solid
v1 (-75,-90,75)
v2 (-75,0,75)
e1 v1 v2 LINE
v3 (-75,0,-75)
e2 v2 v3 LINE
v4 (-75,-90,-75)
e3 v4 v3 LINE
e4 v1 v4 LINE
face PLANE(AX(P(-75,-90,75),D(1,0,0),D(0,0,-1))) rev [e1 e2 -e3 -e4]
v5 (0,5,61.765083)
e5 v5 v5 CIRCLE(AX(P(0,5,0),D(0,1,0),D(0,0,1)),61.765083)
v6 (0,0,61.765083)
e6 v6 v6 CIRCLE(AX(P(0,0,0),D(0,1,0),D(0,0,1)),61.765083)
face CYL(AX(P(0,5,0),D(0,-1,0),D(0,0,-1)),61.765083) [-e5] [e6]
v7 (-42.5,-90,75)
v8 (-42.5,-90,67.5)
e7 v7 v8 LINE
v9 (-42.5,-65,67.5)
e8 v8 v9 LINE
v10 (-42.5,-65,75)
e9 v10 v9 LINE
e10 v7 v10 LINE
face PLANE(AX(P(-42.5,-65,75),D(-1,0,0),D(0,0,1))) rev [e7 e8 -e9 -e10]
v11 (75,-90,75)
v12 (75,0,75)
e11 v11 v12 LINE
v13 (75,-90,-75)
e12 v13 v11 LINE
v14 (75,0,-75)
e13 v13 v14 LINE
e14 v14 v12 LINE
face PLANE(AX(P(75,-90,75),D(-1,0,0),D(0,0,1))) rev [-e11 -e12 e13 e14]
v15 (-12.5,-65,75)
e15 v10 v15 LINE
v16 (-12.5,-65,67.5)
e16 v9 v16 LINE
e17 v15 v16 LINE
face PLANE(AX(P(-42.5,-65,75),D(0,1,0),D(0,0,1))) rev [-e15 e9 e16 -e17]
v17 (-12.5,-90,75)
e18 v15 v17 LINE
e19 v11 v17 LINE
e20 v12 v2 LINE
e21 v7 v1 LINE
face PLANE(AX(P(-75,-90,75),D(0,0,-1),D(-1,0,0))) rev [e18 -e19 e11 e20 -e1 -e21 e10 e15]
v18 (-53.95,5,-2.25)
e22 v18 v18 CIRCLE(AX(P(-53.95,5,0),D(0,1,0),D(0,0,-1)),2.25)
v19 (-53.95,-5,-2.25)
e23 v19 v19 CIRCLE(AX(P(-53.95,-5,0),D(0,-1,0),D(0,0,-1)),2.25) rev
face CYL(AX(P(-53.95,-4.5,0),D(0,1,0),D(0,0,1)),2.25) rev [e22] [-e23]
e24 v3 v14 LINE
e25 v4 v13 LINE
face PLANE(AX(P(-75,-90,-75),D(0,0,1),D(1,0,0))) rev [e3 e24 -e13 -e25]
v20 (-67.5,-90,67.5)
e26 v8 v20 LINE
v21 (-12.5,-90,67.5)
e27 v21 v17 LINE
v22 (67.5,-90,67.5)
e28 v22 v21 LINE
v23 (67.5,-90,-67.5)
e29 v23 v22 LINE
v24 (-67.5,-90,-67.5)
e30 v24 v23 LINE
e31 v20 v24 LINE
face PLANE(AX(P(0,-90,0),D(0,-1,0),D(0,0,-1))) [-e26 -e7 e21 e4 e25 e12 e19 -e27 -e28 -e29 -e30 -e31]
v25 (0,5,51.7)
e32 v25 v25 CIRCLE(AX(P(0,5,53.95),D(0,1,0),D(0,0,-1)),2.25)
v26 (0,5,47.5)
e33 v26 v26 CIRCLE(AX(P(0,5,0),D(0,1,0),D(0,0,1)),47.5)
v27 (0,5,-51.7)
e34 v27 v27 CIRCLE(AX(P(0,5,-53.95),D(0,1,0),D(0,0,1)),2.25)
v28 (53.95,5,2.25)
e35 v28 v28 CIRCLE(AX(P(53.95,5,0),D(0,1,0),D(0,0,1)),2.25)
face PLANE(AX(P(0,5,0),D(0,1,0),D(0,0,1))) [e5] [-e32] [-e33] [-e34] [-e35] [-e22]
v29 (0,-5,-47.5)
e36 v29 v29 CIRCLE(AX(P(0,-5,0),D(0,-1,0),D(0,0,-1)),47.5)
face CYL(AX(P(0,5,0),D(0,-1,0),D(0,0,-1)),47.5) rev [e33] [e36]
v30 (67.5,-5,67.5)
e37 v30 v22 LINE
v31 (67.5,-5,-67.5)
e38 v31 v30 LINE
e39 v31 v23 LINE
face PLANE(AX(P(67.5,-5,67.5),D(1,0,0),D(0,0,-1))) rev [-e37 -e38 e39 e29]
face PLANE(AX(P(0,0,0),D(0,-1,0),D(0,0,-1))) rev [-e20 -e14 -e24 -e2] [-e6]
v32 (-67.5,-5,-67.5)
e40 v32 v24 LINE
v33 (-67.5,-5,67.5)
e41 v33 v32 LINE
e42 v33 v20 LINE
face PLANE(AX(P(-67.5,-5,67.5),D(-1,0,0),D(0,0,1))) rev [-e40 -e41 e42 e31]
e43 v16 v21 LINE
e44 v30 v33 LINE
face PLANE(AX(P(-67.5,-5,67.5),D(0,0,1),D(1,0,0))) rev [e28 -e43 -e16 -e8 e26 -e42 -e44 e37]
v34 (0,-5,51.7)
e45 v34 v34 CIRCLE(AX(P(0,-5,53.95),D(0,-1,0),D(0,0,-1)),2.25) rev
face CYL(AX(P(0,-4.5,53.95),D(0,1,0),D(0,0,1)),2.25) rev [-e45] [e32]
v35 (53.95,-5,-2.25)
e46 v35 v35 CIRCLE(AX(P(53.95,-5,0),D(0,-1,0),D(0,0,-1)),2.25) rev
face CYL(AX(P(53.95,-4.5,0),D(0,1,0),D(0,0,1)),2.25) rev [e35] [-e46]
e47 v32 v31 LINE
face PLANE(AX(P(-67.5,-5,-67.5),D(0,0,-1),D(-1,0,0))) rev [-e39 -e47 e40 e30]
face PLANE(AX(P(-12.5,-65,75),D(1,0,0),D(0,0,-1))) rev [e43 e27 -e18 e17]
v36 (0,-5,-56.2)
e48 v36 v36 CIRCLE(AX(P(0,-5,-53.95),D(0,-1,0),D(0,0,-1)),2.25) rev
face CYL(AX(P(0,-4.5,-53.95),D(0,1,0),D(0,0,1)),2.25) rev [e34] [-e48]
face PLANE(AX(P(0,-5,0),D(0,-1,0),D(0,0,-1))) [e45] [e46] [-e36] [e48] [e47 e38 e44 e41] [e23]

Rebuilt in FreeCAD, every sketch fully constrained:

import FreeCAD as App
import Part
import Sketcher
from FreeCAD import Vector
Q = App.Units.Quantity

doc = App.newDocument("Part")
body = doc.addObject("PartDesign::Body", "Body")

# Sketch on XZ plane
sketch1 = body.newObject("Sketcher::SketchObject", "Sketch")
sketch1.AttachmentSupport = (doc.getObject("XZ_Plane"), [""])
sketch1.MapMode = "FlatFace"
sketch1.addGeometry([
    Part.Circle(Vector(0, 0, 0), Vector(0, 0, 1), 62),
    Part.Circle(Vector(0, 0, 0), Vector(0, 0, 1), 48),
], False)
sketch1.addConstraint([
    Sketcher.Constraint("Coincident", 0, 3, -1, 1),
    Sketcher.Constraint("Coincident", 1, 3, -1, 1),
    Sketcher.Constraint("Diameter", 1, Q("95 mm")),
    Sketcher.Constraint("Diameter", 0, Q("123.530166 mm")),
])
pad1 = body.newObject("PartDesign::Pad", "Pad")
pad1.Profile = sketch1
pad1.Length = 5
pad1.Reversed = True

# Sketch on XZ plane
sketch2 = body.newObject("Sketcher::SketchObject", "Sketch001")
sketch2.AttachmentSupport = (doc.getObject("XZ_Plane"), [""])
sketch2.MapMode = "FlatFace"
sketch2.AttachmentOffset = App.Placement(Vector(0, 0, -5), App.Rotation())
sketch2.addGeometry([
    Part.Circle(Vector(0, -54, 0), Vector(0, 0, 1), 2.2),
    Part.Circle(Vector(0, 54, 0), Vector(0, 0, 1), 2.2),
    Part.Circle(Vector(54, 0, 0), Vector(0, 0, 1), 2.2),
    Part.Circle(Vector(-54, 0, 0), Vector(0, 0, 1), 2.2),
], False)
sketch2.addConstraint([
    Sketcher.Constraint("Equal", 0, 1),
    Sketcher.Constraint("Equal", 1, 2),
    Sketcher.Constraint("Equal", 2, 3),
    Sketcher.Constraint("Symmetric", 0, 3, 1, 3, -1, 1),
    Sketcher.Constraint("Symmetric", 2, 3, 3, 3, -1, 1),
    Sketcher.Constraint("PointOnObject", 0, 3, -2),
    Sketcher.Constraint("PointOnObject", 2, 3, -1),
    Sketcher.Constraint("Diameter", 0, Q("4.5 mm")),
    Sketcher.Constraint("DistanceY", 0, 3, 1, 3, Q("107.9 mm")),
    Sketcher.Constraint("DistanceX", 3, 3, 2, 3, Q("107.9 mm")),
])
pocket1 = body.newObject("PartDesign::Pocket", "Pocket")
pocket1.Profile = sketch2
pocket1.Length = 9.5
pocket1.Reversed = True

# Sketch on XZ plane
sketch3 = body.newObject("Sketcher::SketchObject", "Sketch002")
sketch3.AttachmentSupport = (doc.getObject("XZ_Plane"), [""])
sketch3.MapMode = "FlatFace"
sketch3.addGeometry([
    Part.LineSegment(Vector(75, -75, 0), Vector(75, 75, 0)),  # 0
    Part.LineSegment(Vector(75, 75, 0), Vector(-75, 75, 0)),  # 1
    Part.LineSegment(Vector(-75, 75, 0), Vector(-75, -75, 0)),  # 2
    Part.LineSegment(Vector(-75, -75, 0), Vector(75, -75, 0)),  # 3
    Part.Circle(Vector(0, 54, 0), Vector(0, 0, 1), 2.2),  # 4
    Part.Circle(Vector(54, 0, 0), Vector(0, 0, 1), 2.2),  # 5
    Part.Circle(Vector(0, 0, 0), Vector(0, 0, 1), 47.5),  # 6
    Part.Circle(Vector(-54, 0, 0), Vector(0, 0, 1), 2.2),  # 7
    Part.Circle(Vector(0, -54, 0), Vector(0, 0, 1), 2.2),  # 8
], False)
sketch3.addConstraint([
    Sketcher.Constraint("Coincident", 0, 2, 1, 1),
    Sketcher.Constraint("Coincident", 1, 2, 2, 1),
    Sketcher.Constraint("Coincident", 2, 2, 3, 1),
    Sketcher.Constraint("Coincident", 3, 2, 0, 1),
    Sketcher.Constraint("Vertical", 0),
    Sketcher.Constraint("Horizontal", 1),
    Sketcher.Constraint("Vertical", 2),
    Sketcher.Constraint("Horizontal", 3),
    Sketcher.Constraint("Coincident", 6, 3, -1, 1),
    Sketcher.Constraint("Equal", 4, 5),
    Sketcher.Constraint("Equal", 5, 7),
    Sketcher.Constraint("Equal", 7, 8),
    Sketcher.Constraint("Symmetric", 5, 3, 7, 3, -1, 1),
    Sketcher.Constraint("Symmetric", 4, 3, 8, 3, -1, 1),
    Sketcher.Constraint("Symmetric", 0, 2, 2, 2, -1, 1),
    Sketcher.Constraint("PointOnObject", 4, 3, -2),
    Sketcher.Constraint("PointOnObject", 5, 3, -1),
    Sketcher.Constraint("Equal", 3, 0),
    Sketcher.Constraint("Diameter", 6, Q("95 mm")),
    Sketcher.Constraint("Diameter", 4, Q("4.5 mm")),
    Sketcher.Constraint("DistanceX", 1, 2, 1, 1, Q("150 mm")),
    Sketcher.Constraint("DistanceX", 7, 3, 5, 3, Q("107.9 mm")),
    Sketcher.Constraint("DistanceY", 8, 3, 4, 3, Q("107.9 mm")),
])
pad2 = body.newObject("PartDesign::Pad", "Pad001")
pad2.Profile = sketch3
pad2.Length = 90

# Sketch on XY plane
sketch4 = body.newObject("Sketcher::SketchObject", "Sketch003")
sketch4.AttachmentSupport = (doc.getObject("XY_Plane"), [""])
sketch4.MapMode = "FlatFace"
sketch4.AttachmentOffset = App.Placement(Vector(0, 0, 75), App.Rotation())
sketch4.addGeometry([
    Part.LineSegment(Vector(-13, -65, 0), Vector(-42, -65, 0)),
    Part.LineSegment(Vector(-42, -65, 0), Vector(-42, -95, 0)),
    Part.LineSegment(Vector(-42, -95, 0), Vector(-13, -95, 0)),
    Part.LineSegment(Vector(-13, -95, 0), Vector(-13, -65, 0)),
], False)
sketch4.addConstraint([
    Sketcher.Constraint("Coincident", 0, 2, 1, 1),
    Sketcher.Constraint("Coincident", 1, 2, 2, 1),
    Sketcher.Constraint("Coincident", 2, 2, 3, 1),
    Sketcher.Constraint("Coincident", 3, 2, 0, 1),
    Sketcher.Constraint("Horizontal", 0),
    Sketcher.Constraint("Vertical", 1),
    Sketcher.Constraint("Horizontal", 2),
    Sketcher.Constraint("Vertical", 3),
    Sketcher.Constraint("Equal", 2, 1),
    Sketcher.Constraint("DistanceX", 0, 2, 0, 1, Q("30 mm")),
    Sketcher.Constraint("DistanceY", 0, 2, -1, 1, Q("65 mm")),
    Sketcher.Constraint("DistanceX", 0, 2, -1, 1, Q("42.5 mm")),
])
pocket2 = body.newObject("PartDesign::Pocket", "Pocket001")
pocket2.Profile = sketch4
pocket2.Length = 60

# Sketch on XZ plane
sketch5 = body.newObject("Sketcher::SketchObject", "Sketch004")
sketch5.AttachmentSupport = (doc.getObject("XZ_Plane"), [""])
sketch5.MapMode = "FlatFace"
sketch5.AttachmentOffset = App.Placement(Vector(0, 0, 90), App.Rotation())
sketch5.addGeometry([
    Part.LineSegment(Vector(-68, 68, 0), Vector(-68, -68, 0)),
    Part.LineSegment(Vector(-68, -68, 0), Vector(68, -68, 0)),
    Part.LineSegment(Vector(68, -68, 0), Vector(68, 68, 0)),
    Part.LineSegment(Vector(68, 68, 0), Vector(-68, 68, 0)),
], False)
sketch5.addConstraint([
    Sketcher.Constraint("Coincident", 0, 2, 1, 1),
    Sketcher.Constraint("Coincident", 1, 2, 2, 1),
    Sketcher.Constraint("Coincident", 2, 2, 3, 1),
    Sketcher.Constraint("Coincident", 3, 2, 0, 1),
    Sketcher.Constraint("Vertical", 0),
    Sketcher.Constraint("Horizontal", 1),
    Sketcher.Constraint("Vertical", 2),
    Sketcher.Constraint("Horizontal", 3),
    Sketcher.Constraint("Symmetric", 0, 2, 2, 2, -1, 1),
    Sketcher.Constraint("Equal", 3, 0),
    Sketcher.Constraint("DistanceX", 1, 1, 1, 2, Q("135 mm")),
])
pocket3 = body.newObject("PartDesign::Pocket", "Pocket002")
pocket3.Profile = sketch5
pocket3.Length = 85

doc.recompute()
